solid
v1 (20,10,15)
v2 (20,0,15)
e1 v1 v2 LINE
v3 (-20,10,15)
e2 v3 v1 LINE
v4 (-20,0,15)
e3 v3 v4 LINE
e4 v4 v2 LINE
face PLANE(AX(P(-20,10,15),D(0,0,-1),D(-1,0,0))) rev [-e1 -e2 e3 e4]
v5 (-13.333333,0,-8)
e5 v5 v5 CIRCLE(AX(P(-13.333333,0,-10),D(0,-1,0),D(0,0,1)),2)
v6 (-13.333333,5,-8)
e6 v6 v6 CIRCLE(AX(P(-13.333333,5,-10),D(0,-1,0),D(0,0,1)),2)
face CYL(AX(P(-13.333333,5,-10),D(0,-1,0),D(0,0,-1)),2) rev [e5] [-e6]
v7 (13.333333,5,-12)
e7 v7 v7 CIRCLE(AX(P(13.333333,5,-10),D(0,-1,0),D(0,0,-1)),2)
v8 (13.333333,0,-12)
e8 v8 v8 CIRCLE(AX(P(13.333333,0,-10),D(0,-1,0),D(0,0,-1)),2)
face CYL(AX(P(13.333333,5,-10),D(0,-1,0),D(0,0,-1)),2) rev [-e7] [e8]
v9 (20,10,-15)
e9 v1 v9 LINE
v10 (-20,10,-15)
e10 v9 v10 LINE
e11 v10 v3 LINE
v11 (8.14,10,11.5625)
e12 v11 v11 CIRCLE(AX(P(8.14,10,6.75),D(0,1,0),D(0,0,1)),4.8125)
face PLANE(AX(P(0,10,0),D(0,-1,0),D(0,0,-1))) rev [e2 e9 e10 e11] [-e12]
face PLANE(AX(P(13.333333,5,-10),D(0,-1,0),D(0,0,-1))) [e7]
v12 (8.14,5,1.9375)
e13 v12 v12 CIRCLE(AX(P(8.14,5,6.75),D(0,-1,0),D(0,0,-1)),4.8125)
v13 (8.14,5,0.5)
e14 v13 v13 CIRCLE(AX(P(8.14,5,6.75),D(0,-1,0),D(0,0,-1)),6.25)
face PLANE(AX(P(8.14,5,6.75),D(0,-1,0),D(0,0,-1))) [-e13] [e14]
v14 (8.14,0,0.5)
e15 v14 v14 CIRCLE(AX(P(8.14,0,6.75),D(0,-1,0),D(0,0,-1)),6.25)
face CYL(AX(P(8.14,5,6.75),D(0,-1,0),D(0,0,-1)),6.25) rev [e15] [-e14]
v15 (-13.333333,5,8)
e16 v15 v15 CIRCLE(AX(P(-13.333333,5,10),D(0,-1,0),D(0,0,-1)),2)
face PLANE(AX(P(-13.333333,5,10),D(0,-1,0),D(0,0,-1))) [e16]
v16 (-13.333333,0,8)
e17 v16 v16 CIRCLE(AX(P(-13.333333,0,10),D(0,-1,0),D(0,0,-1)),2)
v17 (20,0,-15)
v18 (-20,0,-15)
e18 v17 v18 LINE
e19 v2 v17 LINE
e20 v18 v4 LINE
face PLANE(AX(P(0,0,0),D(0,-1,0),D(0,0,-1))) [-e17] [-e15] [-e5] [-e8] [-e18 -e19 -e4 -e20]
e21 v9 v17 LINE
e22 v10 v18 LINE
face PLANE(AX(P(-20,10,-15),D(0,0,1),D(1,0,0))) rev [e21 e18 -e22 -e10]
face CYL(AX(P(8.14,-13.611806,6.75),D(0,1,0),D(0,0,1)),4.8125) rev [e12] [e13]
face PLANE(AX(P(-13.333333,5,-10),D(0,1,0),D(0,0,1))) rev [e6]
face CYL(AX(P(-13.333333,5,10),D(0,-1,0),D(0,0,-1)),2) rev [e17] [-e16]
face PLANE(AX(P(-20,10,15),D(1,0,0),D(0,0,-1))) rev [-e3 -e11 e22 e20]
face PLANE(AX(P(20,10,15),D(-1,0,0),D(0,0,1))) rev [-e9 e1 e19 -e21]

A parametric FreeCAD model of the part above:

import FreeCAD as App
import Part
import Sketcher
Q = App.Units.Quantity

doc = App.newDocument("Part")
body = doc.addObject("PartDesign::Body", "Body")

sketch1 = body.newObject("Sketcher::SketchObject", "Sketch")
sketch1.AttachmentSupport = (doc.getObject("XZ_Plane"), [""])
sketch1.MapMode = "FlatFace"
sketch1.addGeometry(Part.LineSegment(App.Vector(-20, -15, 0), App.Vector(-20, 15, 0)), False)
sketch1.addGeometry(Part.LineSegment(App.Vector(-20, 15, 0), App.Vector(20, 15, 0)), False)
sketch1.addGeometry(Part.LineSegment(App.Vector(20, 15, 0), App.Vector(20, -15, 0)), False)
sketch1.addGeometry(Part.LineSegment(App.Vector(20, -15, 0), App.Vector(-20, -15, 0)), False)
sketch1.addConstraint(Sketcher.Constraint("Coincident", 0, 2, 1, 1))
sketch1.addConstraint(Sketcher.Constraint("Coincident", 1, 2, 2, 1))
sketch1.addConstraint(Sketcher.Constraint("Coincident", 2, 2, 3, 1))
sketch1.addConstraint(Sketcher.Constraint("Coincident", 3, 2, 0, 1))
sketch1.addConstraint(Sketcher.Constraint("Vertical", 0))
sketch1.addConstraint(Sketcher.Constraint("Horizontal", 1))
sketch1.addConstraint(Sketcher.Constraint("Vertical", 2))
sketch1.addConstraint(Sketcher.Constraint("Horizontal", 3))
sketch1.addConstraint(Sketcher.Constraint("Symmetric", 0, 2, 2, 2, -1, 1))
sketch1.addConstraint(Sketcher.Constraint("DistanceX", 1, 1, 1, 2, Q("40 mm")))
sketch1.addConstraint(Sketcher.Constraint("DistanceY", 0, 1, 0, 2, Q("30 mm")))
pad1 = body.newObject("PartDesign::Pad", "Pad")
pad1.Profile = sketch1
pad1.Length = 10
pad1.Reversed = True

sketch2 = body.newObject("Sketcher::SketchObject", "Sketch001")
sketch2.AttachmentSupport = (doc.getObject("XZ_Plane"), [""])
sketch2.MapMode = "FlatFace"
sketch2.addGeometry(Part.Circle(App.Vector(-13.333333, 10, 0), App.Vector(0, 0, 1), 2), False)
sketch2.addGeometry(Part.Circle(App.Vector(-13.333333, -10, 0), App.Vector(0, 0, 1), 2), False)
sketch2.addGeometry(Part.Circle(App.Vector(13.333333, -10, 0), App.Vector(0, 0, 1), 2), False)
sketch2.addGeometry(Part.Circle(App.Vector(8.14, 6.75, 0), App.Vector(0, 0, 1), 6.25), False)
sketch2.addConstraint(Sketcher.Constraint("Equal", 0, 1))
sketch2.addConstraint(Sketcher.Constraint("Equal", 1, 2))
sketch2.addConstraint(Sketcher.Constraint("Symmetric", 0, 3, 2, 3, -1, 1))
sketch2.addConstraint(Sketcher.Constraint("Symmetric", 1, 3, 2, 3, -2))
sketch2.addConstraint(Sketcher.Constraint("Diameter", 0, Q("4 mm")))
sketch2.addConstraint(Sketcher.Constraint("Diameter", 3, Q("12.5 mm")))
sketch2.addConstraint(Sketcher.Constraint("DistanceY", -1, 1, 0, 3, Q("10 mm")))
sketch2.addConstraint(Sketcher.Constraint("DistanceX", -1, 1, 3, 3, Q("8.14 mm")))
sketch2.addConstraint(Sketcher.Constraint("DistanceY", -1, 1, 3, 3, Q("6.75 mm")))
sketch2.addConstraint(Sketcher.Constraint("DistanceX", 0, 3, -1, 1, Q("13.333333 mm")))
pocket1 = body.newObject("PartDesign::Pocket", "Pocket")
pocket1.Profile = sketch2
pocket1.Length = 5

sketch3 = body.newObject("Sketcher::SketchObject", "Sketch002")
sketch3.AttachmentSupport = (doc.getObject("XZ_Plane"), [""])
sketch3.MapMode = "FlatFace"
sketch3.AttachmentOffset = App.Placement(App.Vector(0, 0, -10), App.Rotation())
sketch3.addGeometry(Part.Circle(App.Vector(8.14, 6.75, 0), App.Vector(0, 0, 1), 4.8125), False)
sketch3.addConstraint(Sketcher.Constraint("Diameter", 0, Q("9.625 mm")))
sketch3.addConstraint(Sketcher.Constraint("DistanceX", -1, 1, 0, 3, Q("8.14 mm")))
sketch3.addConstraint(Sketcher.Constraint("DistanceY", -1, 1, 0, 3, Q("6.75 mm")))
pocket2 = body.newObject("PartDesign::Pocket", "Pocket001")
pocket2.Profile = sketch3
pocket2.Length = 10
pocket2.Reversed = True

doc.recompute()
